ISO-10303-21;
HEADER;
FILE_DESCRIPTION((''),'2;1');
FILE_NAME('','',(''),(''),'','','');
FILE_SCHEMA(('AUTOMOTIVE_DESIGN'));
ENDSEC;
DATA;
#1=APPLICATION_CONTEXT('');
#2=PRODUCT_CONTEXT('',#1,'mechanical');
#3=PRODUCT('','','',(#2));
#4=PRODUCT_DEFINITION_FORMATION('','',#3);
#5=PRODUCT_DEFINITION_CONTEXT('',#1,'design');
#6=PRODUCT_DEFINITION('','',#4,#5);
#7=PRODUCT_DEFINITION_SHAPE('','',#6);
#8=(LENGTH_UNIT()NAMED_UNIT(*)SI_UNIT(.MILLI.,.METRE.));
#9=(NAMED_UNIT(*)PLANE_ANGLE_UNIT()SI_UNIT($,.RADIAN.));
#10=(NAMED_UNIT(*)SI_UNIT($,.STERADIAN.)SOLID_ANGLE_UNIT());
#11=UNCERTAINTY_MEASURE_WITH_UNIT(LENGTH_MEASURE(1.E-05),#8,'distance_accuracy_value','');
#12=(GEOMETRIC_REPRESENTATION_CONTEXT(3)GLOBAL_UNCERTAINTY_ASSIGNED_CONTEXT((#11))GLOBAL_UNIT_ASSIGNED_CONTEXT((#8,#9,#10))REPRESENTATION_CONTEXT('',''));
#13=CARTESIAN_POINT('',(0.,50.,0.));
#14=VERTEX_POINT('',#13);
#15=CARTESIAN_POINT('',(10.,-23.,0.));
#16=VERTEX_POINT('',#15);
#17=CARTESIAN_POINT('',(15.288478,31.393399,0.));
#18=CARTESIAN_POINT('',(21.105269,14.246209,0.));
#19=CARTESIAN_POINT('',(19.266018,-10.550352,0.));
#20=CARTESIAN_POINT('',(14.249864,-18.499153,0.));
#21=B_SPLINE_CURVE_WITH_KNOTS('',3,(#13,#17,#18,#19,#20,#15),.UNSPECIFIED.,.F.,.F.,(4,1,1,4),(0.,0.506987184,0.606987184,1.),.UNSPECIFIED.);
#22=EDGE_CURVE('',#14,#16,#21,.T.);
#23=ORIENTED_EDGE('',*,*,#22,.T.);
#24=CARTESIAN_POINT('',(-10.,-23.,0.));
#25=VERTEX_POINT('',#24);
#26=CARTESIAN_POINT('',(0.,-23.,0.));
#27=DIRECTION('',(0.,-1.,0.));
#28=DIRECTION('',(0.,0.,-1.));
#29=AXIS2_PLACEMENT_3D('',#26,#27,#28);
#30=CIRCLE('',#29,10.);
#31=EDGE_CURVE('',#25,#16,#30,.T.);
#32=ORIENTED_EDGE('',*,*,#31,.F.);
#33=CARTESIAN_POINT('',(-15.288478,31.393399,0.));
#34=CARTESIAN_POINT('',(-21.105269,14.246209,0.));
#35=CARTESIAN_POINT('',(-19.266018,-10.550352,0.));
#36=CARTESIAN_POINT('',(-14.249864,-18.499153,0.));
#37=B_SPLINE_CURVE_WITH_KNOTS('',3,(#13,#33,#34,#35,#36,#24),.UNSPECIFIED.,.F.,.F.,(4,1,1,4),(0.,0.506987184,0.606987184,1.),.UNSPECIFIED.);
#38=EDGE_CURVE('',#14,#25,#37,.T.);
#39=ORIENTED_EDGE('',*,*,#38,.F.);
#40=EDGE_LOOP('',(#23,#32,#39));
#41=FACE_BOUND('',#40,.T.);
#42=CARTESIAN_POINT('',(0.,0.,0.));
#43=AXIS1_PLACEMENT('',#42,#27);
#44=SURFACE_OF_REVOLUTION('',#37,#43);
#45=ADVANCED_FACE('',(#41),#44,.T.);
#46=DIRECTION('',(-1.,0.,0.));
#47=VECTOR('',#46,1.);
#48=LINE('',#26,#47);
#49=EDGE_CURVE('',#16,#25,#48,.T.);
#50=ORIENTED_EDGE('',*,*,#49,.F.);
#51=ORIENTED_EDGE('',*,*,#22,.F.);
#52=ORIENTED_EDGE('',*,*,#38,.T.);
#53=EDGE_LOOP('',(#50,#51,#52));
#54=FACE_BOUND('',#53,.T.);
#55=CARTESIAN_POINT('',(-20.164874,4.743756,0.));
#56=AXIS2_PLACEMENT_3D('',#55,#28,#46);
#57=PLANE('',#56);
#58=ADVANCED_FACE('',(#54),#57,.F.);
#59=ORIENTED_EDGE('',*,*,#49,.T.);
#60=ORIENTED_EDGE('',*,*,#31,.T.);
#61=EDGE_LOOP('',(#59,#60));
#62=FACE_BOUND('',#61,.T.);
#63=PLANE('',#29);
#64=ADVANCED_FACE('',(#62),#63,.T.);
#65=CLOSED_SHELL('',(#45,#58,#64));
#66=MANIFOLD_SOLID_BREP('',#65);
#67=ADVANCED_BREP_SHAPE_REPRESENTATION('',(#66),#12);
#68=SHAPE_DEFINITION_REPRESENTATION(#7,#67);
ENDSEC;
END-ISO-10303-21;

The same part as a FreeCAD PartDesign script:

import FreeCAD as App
import Part
import Sketcher

doc = App.newDocument("Part")
body = doc.addObject("PartDesign::Body", "Body")

# Sketch on XY plane
sketch1 = body.newObject("Sketcher::SketchObject", "Sketch")
sketch1.AttachmentSupport = (doc.getObject("XY_Plane"), [""])
sketch1.MapMode = "FlatFace"
sketch1.addGeometry(Part.BSplineCurve([App.Vector(0, 50, 0), App.Vector(15.288478, 31.393399, 0), App.Vector(21.105269, 14.246209, 0), App.Vector(19.266018, -10.550352, 0), App.Vector(14.249864, -18.499153, 0), App.Vector(10, -23, 0)], [4, 1, 1, 4], [0, 0.506987184, 0.606987184, 1], False, 3, [1, 1, 1, 1, 1, 1], False), False)
sketch1.addGeometry(Part.LineSegment(App.Vector(0, 50, 0), App.Vector(0, -23, 0)), False)
sketch1.addGeometry(Part.LineSegment(App.Vector(0, -23, 0), App.Vector(10, -23, 0)), False)
sketch1.addConstraint(Sketcher.Constraint("Block", 0))
sketch1.addConstraint(Sketcher.Constraint("Coincident", 0, 1, 1, 1))
sketch1.addConstraint(Sketcher.Constraint("Coincident", 1, 2, 2, 1))
sketch1.addConstraint(Sketcher.Constraint("Coincident", 2, 2, 0, 2))
sketch1.addConstraint(Sketcher.Constraint("Vertical", 1))
sketch1.addConstraint(Sketcher.Constraint("Horizontal", 2))
revolution = body.newObject("PartDesign::Revolution", "Revolution")
revolution.Profile = sketch1
revolution.ReferenceAxis = (sketch1, ["V_Axis"])
revolution.Angle = 180

doc.recompute()
